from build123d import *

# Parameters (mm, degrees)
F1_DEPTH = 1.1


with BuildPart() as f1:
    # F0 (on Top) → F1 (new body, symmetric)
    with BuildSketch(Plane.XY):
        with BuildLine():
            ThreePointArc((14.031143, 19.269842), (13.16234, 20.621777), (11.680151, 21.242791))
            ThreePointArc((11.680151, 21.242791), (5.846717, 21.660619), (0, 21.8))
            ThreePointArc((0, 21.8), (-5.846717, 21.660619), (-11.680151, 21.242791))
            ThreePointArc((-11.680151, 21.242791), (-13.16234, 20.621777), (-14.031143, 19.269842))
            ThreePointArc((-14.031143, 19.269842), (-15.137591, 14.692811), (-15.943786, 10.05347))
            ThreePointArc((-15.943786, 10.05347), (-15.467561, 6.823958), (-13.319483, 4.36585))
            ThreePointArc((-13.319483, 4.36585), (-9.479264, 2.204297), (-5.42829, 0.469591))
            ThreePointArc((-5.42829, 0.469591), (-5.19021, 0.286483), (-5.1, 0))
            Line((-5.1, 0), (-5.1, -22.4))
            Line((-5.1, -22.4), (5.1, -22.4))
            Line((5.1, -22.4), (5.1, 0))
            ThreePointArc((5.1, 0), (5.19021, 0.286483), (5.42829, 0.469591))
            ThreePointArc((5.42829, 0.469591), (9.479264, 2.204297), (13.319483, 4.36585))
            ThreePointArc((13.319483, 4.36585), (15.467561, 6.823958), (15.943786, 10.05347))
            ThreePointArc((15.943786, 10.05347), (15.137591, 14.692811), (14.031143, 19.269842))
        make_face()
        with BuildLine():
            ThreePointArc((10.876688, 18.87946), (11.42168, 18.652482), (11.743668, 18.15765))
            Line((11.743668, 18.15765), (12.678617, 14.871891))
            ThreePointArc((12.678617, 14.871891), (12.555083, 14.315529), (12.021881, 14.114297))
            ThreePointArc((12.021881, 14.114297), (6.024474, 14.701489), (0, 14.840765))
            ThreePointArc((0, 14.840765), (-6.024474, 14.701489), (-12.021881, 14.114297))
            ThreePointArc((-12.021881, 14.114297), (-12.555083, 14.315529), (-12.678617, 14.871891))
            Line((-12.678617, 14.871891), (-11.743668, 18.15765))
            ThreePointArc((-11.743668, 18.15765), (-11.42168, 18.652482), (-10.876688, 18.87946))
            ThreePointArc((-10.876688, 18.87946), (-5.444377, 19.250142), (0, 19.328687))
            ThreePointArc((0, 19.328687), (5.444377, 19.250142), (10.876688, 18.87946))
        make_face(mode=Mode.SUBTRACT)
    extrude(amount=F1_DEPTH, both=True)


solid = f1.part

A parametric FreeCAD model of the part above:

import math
import FreeCAD as App
import Part
import Sketcher

V = App.Vector

doc = App.newDocument("Part")
body = doc.addObject("PartDesign::Body", "Body")

# Sketch on XY plane
sketch1 = body.newObject("Sketcher::SketchObject", "Sketch")
sketch1.AttachmentSupport = (doc.getObject("XY_Plane"), [""])
sketch1.MapMode = "FlatFace"
sketch1.addGeometry(Part.ArcOfCircle(Part.Circle(V(11.422505, 18.548565, 0), V(0, 0, 1), 2.706517), math.radians(15.455884), math.radians(84.537467)), False)
sketch1.addGeometry(Part.ArcOfCircle(Part.Circle(V(0.000017, -100.897239, 0), V(0, 0, 1), 122.697239), math.radians(84.537471), math.radians(90.000008)), False)
sketch1.addGeometry(Part.ArcOfCircle(Part.Circle(V(-0.000017, -100.897239, 0), V(0, 0, 1), 122.697239), math.radians(89.999992), math.radians(95.462529)), False)
sketch1.addGeometry(Part.ArcOfCircle(Part.Circle(V(-11.422505, 18.548565, 0), V(0, 0, 1), 2.706517), math.radians(95.462533), math.radians(164.544116)), False)
sketch1.addGeometry(Part.ArcOfCircle(Part.Circle(V(55.662445, -0.000085, 0), V(0, 0, 1), 72.308549), math.radians(164.544146), math.radians(172.007882)), False)
sketch1.addGeometry(Part.ArcOfCircle(Part.Circle(V(-10.212298, 9.248769, 0), V(0, 0, 1), 5.787702), math.radians(172.007913), math.radians(237.529871)), False)
sketch1.addGeometry(Part.ArcOfCircle(Part.Circle(V(8.581121, 38.782457, 0), V(0, 0, 1), 40.793863), math.radians(-122.470158), math.radians(-110.085351)), False)
sketch1.addGeometry(Part.ArcOfCircle(Part.Circle(V(-5.599998, 0.000001, 0), V(0, 0, 1), 0.499998), math.radians(-0.000125), math.radians(69.914745)), False)
sketch1.addGeometry(Part.LineSegment(V(-5.1, 0, 0), V(-5.1, -22.4, 0)), False)
sketch1.addGeometry(Part.LineSegment(V(-5.1, -22.4, 0), V(5.1, -22.4, 0)), False)
sketch1.addGeometry(Part.LineSegment(V(5.1, -22.4, 0), V(5.1, 0, 0)), False)
sketch1.addGeometry(Part.ArcOfCircle(Part.Circle(V(5.599998, 0.000001, 0), V(0, 0, 1), 0.499998), math.radians(110.085255), math.radians(180.000125)), False)
sketch1.addGeometry(Part.ArcOfCircle(Part.Circle(V(-8.581121, 38.782457, 0), V(0, 0, 1), 40.793863), math.radians(-69.914649), math.radians(-57.529842)), False)
sketch1.addGeometry(Part.ArcOfCircle(Part.Circle(V(10.212298, 9.248769, 0), V(0, 0, 1), 5.787702), math.radians(-57.529871), math.radians(7.992087)), False)
sketch1.addGeometry(Part.ArcOfCircle(Part.Circle(V(-55.662445, -0.000085, 0), V(0, 0, 1), 72.308549), math.radians(7.992118), math.radians(15.455854)), False)
sketch1.addGeometry(Part.ArcOfCircle(Part.Circle(V(1.260016, -82.061642, 0), V(0, 0, 1), 101.398158), math.radians(84.557849), math.radians(90.712)), False)
sketch1.addGeometry(Part.ArcOfCircle(Part.Circle(V(10.781847, 17.883967, 0), V(0, 0, 1), 1.000001), math.radians(15.883547), math.radians(84.557853)), False)
sketch1.addGeometry(Part.LineSegment(V(11.743668, 18.15765, 0), V(12.678617, 14.871891, 0)), False)
sketch1.addGeometry(Part.ArcOfCircle(Part.Circle(V(12.102414, 14.707935, 0), V(0, 0, 1), 0.599075), math.radians(-97.725605), math.radians(15.883492)), False)
sketch1.addGeometry(Part.ArcOfCircle(Part.Circle(V(1.143182, -66.076074, 0), V(0, 0, 1), 80.924914), math.radians(82.274366), math.radians(90.809413)), False)
sketch1.addGeometry(Part.ArcOfCircle(Part.Circle(V(-1.143182, -66.076074, 0), V(0, 0, 1), 80.924914), math.radians(89.190587), math.radians(97.725634)), False)
sketch1.addGeometry(Part.ArcOfCircle(Part.Circle(V(-12.102414, 14.707935, 0), V(0, 0, 1), 0.599075), math.radians(164.116508), math.radians(277.725605)), False)
sketch1.addGeometry(Part.LineSegment(V(-12.678617, 14.871891, 0), V(-11.743668, 18.15765, 0)), False)
sketch1.addGeometry(Part.ArcOfCircle(Part.Circle(V(-10.781847, 17.883967, 0), V(0, 0, 1), 1.000001), math.radians(95.442147), math.radians(164.116453)), False)
sketch1.addGeometry(Part.ArcOfCircle(Part.Circle(V(-1.260016, -82.061642, 0), V(0, 0, 1), 101.398158), math.radians(89.288), math.radians(95.442151)), False)
sketch1.addConstraint(Sketcher.Constraint("Coincident", 0, 2, 1, 1))
sketch1.addConstraint(Sketcher.Constraint("Coincident", 1, 2, 2, 1))
sketch1.addConstraint(Sketcher.Constraint("Coincident", 2, 2, 3, 1))
sketch1.addConstraint(Sketcher.Constraint("Coincident", 3, 2, 4, 1))
sketch1.addConstraint(Sketcher.Constraint("Coincident", 4, 2, 5, 1))
sketch1.addConstraint(Sketcher.Constraint("Coincident", 5, 2, 6, 1))
sketch1.addConstraint(Sketcher.Constraint("Coincident", 6, 2, 7, 2))
sketch1.addConstraint(Sketcher.Constraint("Coincident", 7, 1, 8, 1))
sketch1.addConstraint(Sketcher.Constraint("Coincident", 8, 2, 9, 1))
sketch1.addConstraint(Sketcher.Constraint("Coincident", 9, 2, 10, 1))
sketch1.addConstraint(Sketcher.Constraint("Coincident", 10, 2, 11, 2))
sketch1.addConstraint(Sketcher.Constraint("Coincident", 11, 1, 12, 1))
sketch1.addConstraint(Sketcher.Constraint("Coincident", 12, 2, 13, 1))
sketch1.addConstraint(Sketcher.Constraint("Coincident", 13, 2, 14, 1))
sketch1.addConstraint(Sketcher.Constraint("Coincident", 14, 2, 0, 1))
sketch1.addConstraint(Sketcher.Constraint("Coincident", 15, 1, 16, 2))
sketch1.addConstraint(Sketcher.Constraint("Coincident", 16, 1, 17, 1))
sketch1.addConstraint(Sketcher.Constraint("Coincident", 17, 2, 18, 2))
sketch1.addConstraint(Sketcher.Constraint("Coincident", 18, 1, 19, 1))
sketch1.addConstraint(Sketcher.Constraint("Coincident", 19, 2, 20, 1))
sketch1.addConstraint(Sketcher.Constraint("Coincident", 20, 2, 21, 2))
sketch1.addConstraint(Sketcher.Constraint("Coincident", 21, 1, 22, 1))
sketch1.addConstraint(Sketcher.Constraint("Coincident", 22, 2, 23, 2))
sketch1.addConstraint(Sketcher.Constraint("Coincident", 23, 1, 24, 2))
sketch1.addConstraint(Sketcher.Constraint("Coincident", 24, 1, 15, 2))
sketch1.addConstraint(Sketcher.Constraint("Vertical", 8))
sketch1.addConstraint(Sketcher.Constraint("Horizontal", 9))
sketch1.addConstraint(Sketcher.Constraint("Vertical", 10))
sketch1.addConstraint(Sketcher.Constraint("PointOnObject", 7, 3, -1))
sketch1.addConstraint(Sketcher.Constraint("PointOnObject", 11, 3, -1))
sketch1.addConstraint(Sketcher.Constraint("PointOnObject", 1, 2, -2))
sketch1.addConstraint(Sketcher.Constraint("PointOnObject", 7, 1, -1))
sketch1.addConstraint(Sketcher.Constraint("PointOnObject", 10, 2, -1))
sketch1.addConstraint(Sketcher.Constraint("PointOnObject", 19, 2, -2))
sketch1.addConstraint(Sketcher.Constraint("PointOnObject", 24, 1, -2))
sketch1.addConstraint(Sketcher.Constraint("Radius", 16, 1.000001))
sketch1.addConstraint(Sketcher.Constraint("Radius", 23, 1.000001))
sketch1.addConstraint(Sketcher.Constraint("Radius", 7, 0.499998))
sketch1.addConstraint(Sketcher.Constraint("Radius", 11, 0.499998))
sketch1.addConstraint(Sketcher.Constraint("DistanceX", 9, 1, 9, 2, 10.2))
sketch1.addConstraint(Sketcher.Constraint("DistanceY", 8, 2, 8, 1, 22.4))
sketch1.addConstraint(Sketcher.Constraint("DistanceX", 7, 3, -1, 1, 5.599998))
sketch1.addConstraint(Sketcher.Constraint("DistanceY", -1, 1, 1, 2, 21.8))
sketch1.addConstraint(Sketcher.Constraint("Radius", 1, 122.697239))
sketch1.addConstraint(Sketcher.Constraint("Radius", 2, 122.697239))
sketch1.addConstraint(Sketcher.Constraint("Radius", 4, 72.308549))
sketch1.addConstraint(Sketcher.Constraint("Radius", 14, 72.308549))
sketch1.addConstraint(Sketcher.Constraint("DistanceX", 1, 3, 15, 3, 1.259999))
sketch1.addConstraint(Sketcher.Constraint("DistanceX", 24, 3, 2, 3, 1.259999))
sketch1.addConstraint(Sketcher.Constraint("Radius", 0, 2.706517))
sketch1.addConstraint(Sketcher.Constraint("Radius", 3, 2.706517))
sketch1.addConstraint(Sketcher.Constraint("Radius", 5, 5.787702))
sketch1.addConstraint(Sketcher.Constraint("Radius", 6, 40.793863))
sketch1.addConstraint(Sketcher.Constraint("Radius", 12, 40.793863))
sketch1.addConstraint(Sketcher.Constraint("Radius", 13, 5.787702))
sketch1.addConstraint(Sketcher.Constraint("Radius", 15, 101.398158))
sketch1.addConstraint(Sketcher.Constraint("Radius", 18, 0.599075))
sketch1.addConstraint(Sketcher.Constraint("Radius", 19, 80.924914))
sketch1.addConstraint(Sketcher.Constraint("Radius", 20, 80.924914))
sketch1.addConstraint(Sketcher.Constraint("Radius", 21, 0.599075))
sketch1.addConstraint(Sketcher.Constraint("Radius", 24, 101.398158))
sketch1.addConstraint(Sketcher.Constraint("DistanceX", 5, 3, -1, 1, 10.212298))
sketch1.addConstraint(Sketcher.Constraint("DistanceX", -1, 1, 13, 3, 10.212298))
sketch1.addConstraint(Sketcher.Constraint("DistanceY", 16, 3, 0, 3, 0.664598))
sketch1.addConstraint(Sketcher.Constraint("DistanceY", 16, 3, 3, 3, 0.664598))
sketch1.addConstraint(Sketcher.Constraint("DistanceX", 2, 3, 19, 3, 1.143199))
sketch1.addConstraint(Sketcher.Constraint("DistanceX", 20, 3, 1, 3, 1.143199))
sketch1.addConstraint(Sketcher.Constraint("DistanceY", 23, 3, 3, 3, 0.664598))
sketch1.addConstraint(Sketcher.Constraint("DistanceY", 5, 3, 4, 2, 0.804701))
sketch1.addConstraint(Sketcher.Constraint("DistanceY", 13, 3, 13, 2, 0.804701))
sketch1.addConstraint(Sketcher.Constraint("DistanceY", 19, 2, 16, 3, 3.043202))
sketch1.addConstraint(Sketcher.Constraint("Distance", 17, 3.416188))
sketch1.addConstraint(Sketcher.Constraint("Distance", 22, 3.416188))
sketch1.addConstraint(Sketcher.Constraint("DistanceY", -1, 1, 5, 3, 9.248769))
sketch1.addConstraint(Sketcher.Constraint("DistanceX", 12, 3, -1, 1, 8.581121))
sketch1.addConstraint(Sketcher.Constraint("DistanceY", 15, 3, -1, 1, 82.061642))
sketch1.addConstraint(Sketcher.Constraint("DistanceX", -1, 1, 19, 3, 1.143182))
sketch1.addConstraint(Sketcher.Constraint("DistanceX", 20, 3, -1, 1, 1.143182))
sketch1.addConstraint(Sketcher.Constraint("DistanceX", -1, 1, 0, 2, 11.680151))
sketch1.addConstraint(Sketcher.Constraint("DistanceX", 2, 2, -1, 1, 11.680151))
sketch1.addConstraint(Sketcher.Constraint("DistanceY", -1, 1, 5, 2, 4.36585))
sketch1.addConstraint(Sketcher.Constraint("DistanceX", 6, 2, -1, 1, 5.42829))
sketch1.addConstraint(Sketcher.Constraint("DistanceX", -1, 1, 11, 1, 5.42829))
sketch1.addConstraint(Sketcher.Constraint("DistanceY", -1, 1, 12, 2, 4.36585))
sketch1.addConstraint(Sketcher.Constraint("DistanceY", -1, 1, 14, 2, 19.269842))
sketch1.addConstraint(Sketcher.Constraint("DistanceX", -1, 1, 15, 1, 10.876688))
sketch1.addConstraint(Sketcher.Constraint("DistanceY", -1, 1, 16, 1, 18.15765))
sketch1.addConstraint(Sketcher.Constraint("DistanceY", -1, 1, 17, 2, 14.871891))
sketch1.addConstraint(Sketcher.Constraint("DistanceX", -1, 1, 18, 1, 12.021881))
sketch1.addConstraint(Sketcher.Constraint("DistanceX", 20, 2, -1, 1, 12.021881))
sketch1.addConstraint(Sketcher.Constraint("DistanceY", -1, 1, 21, 1, 14.871891))
sketch1.addConstraint(Sketcher.Constraint("DistanceY", -1, 1, 22, 2, 18.15765))
sketch1.addConstraint(Sketcher.Constraint("DistanceY", -1, 1, 23, 1, 18.87946))
sketch1.addConstraint(Sketcher.Constraint("DistanceX", 2, 3, 0, 3, 11.422522))
sketch1.addConstraint(Sketcher.Constraint("DistanceX", 3, 2, 3, 3, 2.608638))
pad1 = body.newObject("PartDesign::Pad", "Pad")
pad1.Profile = sketch1
pad1.Length = 2.2
pad1.Midplane = True

doc.recompute()
